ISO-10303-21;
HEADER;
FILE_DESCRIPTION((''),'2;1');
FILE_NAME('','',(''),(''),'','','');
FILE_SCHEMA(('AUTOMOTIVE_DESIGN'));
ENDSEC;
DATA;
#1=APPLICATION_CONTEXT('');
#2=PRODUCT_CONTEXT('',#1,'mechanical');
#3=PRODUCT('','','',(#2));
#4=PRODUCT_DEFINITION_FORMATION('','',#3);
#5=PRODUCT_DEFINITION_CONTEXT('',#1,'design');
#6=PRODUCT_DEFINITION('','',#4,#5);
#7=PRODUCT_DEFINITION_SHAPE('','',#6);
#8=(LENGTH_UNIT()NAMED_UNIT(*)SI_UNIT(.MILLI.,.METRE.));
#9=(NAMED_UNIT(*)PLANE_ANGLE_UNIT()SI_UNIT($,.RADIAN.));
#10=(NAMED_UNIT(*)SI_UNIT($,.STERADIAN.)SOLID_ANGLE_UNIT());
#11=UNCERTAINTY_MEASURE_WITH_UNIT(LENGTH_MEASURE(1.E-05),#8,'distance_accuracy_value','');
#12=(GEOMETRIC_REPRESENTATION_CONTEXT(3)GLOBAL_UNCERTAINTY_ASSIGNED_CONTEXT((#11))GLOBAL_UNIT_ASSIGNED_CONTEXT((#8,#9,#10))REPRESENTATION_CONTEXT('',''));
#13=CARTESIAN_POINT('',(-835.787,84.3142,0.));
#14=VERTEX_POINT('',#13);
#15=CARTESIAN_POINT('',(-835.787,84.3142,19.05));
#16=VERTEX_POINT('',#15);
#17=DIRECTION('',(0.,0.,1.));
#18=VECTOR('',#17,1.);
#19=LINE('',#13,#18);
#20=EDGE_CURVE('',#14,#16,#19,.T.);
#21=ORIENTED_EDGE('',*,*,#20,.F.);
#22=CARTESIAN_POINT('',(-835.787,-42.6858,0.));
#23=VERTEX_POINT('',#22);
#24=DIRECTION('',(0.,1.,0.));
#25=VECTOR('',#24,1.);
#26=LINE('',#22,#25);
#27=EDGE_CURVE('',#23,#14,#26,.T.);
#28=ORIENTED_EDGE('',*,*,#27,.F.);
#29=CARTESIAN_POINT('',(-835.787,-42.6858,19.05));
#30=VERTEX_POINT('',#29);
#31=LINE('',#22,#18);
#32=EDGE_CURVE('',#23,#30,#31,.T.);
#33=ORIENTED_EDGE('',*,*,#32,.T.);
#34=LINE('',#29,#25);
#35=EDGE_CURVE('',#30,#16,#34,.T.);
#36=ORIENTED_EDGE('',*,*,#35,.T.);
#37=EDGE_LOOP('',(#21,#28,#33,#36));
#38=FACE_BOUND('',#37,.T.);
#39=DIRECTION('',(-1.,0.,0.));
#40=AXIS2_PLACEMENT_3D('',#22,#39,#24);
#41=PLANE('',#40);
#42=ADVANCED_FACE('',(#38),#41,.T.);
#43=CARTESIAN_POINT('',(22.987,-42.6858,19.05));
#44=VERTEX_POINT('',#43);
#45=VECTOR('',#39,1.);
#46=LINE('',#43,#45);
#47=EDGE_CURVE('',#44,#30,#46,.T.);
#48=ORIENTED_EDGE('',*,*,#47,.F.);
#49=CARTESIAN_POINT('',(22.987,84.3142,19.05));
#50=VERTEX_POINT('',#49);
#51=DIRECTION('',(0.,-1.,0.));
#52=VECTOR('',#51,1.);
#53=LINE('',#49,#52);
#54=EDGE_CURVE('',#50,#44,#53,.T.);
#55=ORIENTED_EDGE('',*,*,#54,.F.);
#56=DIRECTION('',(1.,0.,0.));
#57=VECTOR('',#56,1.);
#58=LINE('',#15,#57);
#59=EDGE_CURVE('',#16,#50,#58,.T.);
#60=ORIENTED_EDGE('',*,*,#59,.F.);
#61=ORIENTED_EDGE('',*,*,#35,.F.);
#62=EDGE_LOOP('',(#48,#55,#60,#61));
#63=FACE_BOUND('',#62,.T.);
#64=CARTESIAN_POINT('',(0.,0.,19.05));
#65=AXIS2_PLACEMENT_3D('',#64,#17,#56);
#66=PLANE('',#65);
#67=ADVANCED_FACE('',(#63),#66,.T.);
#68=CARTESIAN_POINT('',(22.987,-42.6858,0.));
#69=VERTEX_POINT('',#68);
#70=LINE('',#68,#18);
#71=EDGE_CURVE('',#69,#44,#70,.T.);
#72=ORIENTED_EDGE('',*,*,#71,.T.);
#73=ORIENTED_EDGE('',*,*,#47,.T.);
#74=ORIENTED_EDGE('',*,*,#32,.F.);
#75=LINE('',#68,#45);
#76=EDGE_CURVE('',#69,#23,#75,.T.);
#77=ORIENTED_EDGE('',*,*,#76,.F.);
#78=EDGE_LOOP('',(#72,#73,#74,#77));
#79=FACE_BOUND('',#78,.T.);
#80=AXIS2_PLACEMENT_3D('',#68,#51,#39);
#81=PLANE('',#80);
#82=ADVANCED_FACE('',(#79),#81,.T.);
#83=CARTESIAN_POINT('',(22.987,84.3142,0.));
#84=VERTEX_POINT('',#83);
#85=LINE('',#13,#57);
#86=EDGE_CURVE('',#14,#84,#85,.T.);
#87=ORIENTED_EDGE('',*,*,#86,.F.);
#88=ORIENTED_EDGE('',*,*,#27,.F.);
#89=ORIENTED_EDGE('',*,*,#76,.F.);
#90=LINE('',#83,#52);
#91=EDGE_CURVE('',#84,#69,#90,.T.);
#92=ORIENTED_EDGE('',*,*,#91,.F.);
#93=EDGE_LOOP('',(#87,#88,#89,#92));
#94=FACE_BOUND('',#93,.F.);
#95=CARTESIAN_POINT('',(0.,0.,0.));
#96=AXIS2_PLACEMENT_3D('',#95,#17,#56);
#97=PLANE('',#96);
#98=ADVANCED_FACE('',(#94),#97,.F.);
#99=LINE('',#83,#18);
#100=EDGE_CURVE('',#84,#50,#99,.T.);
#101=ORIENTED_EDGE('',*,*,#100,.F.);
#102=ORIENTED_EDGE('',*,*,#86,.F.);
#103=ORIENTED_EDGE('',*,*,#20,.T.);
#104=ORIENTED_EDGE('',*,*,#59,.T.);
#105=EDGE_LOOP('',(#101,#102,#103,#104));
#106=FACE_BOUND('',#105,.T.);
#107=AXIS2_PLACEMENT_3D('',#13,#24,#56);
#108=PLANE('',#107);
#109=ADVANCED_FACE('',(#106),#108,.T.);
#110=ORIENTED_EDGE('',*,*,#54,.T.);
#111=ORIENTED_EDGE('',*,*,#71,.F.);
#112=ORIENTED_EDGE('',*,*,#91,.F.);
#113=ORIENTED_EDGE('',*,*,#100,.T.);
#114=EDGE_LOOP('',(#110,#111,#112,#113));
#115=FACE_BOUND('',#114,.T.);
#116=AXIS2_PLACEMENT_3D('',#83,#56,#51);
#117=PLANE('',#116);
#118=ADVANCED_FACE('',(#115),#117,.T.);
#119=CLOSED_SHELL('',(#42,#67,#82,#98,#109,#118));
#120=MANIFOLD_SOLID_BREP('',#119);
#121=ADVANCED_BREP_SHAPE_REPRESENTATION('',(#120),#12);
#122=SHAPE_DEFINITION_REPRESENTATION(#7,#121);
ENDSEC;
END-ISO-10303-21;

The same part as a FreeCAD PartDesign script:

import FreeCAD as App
import Part
import Sketcher
from FreeCAD import Vector
Q = App.Units.Quantity

doc = App.newDocument("Part")
params = doc.addObject("Spreadsheet::Sheet", "Params")
for row, (alias, value) in enumerate([
    ("sketch1_height", "5 in"),
    ("sketch1_width", "33.81 in"),
    ("pad1_length", "0.75 in"),
], start=1):
    params.set(f"A{row}", alias)
    params.set(f"B{row}", "=" + value)
    params.setAlias(f"B{row}", alias)

body = doc.addObject("PartDesign::Body", "Body")

sketch1 = body.newObject("Sketcher::SketchObject", "Sketch")
sketch1.AttachmentSupport = (doc.getObject("XY_Plane"), [""])
sketch1.MapMode = "FlatFace"
sketch1.addGeometry([
    Part.LineSegment(Vector(23, -43, 0), Vector(23, 84, 0)),
    Part.LineSegment(Vector(23, 84, 0), Vector(-836, 84, 0)),
    Part.LineSegment(Vector(-836, 84, 0), Vector(-836, -43, 0)),
    Part.LineSegment(Vector(-836, -43, 0), Vector(23, -43, 0)),
], False)
sketch1.addConstraint([
    Sketcher.Constraint("Coincident", 0, 2, 1, 1),
    Sketcher.Constraint("Coincident", 1, 2, 2, 1),
    Sketcher.Constraint("Coincident", 2, 2, 3, 1),
    Sketcher.Constraint("Coincident", 3, 2, 0, 1),
    Sketcher.Constraint("Vertical", 0),
    Sketcher.Constraint("Horizontal", 1),
    Sketcher.Constraint("Vertical", 2),
    Sketcher.Constraint("Horizontal", 3),
    Sketcher.Constraint("DistanceY", 0, 1, 0, 2, Q("5 in")),
    Sketcher.Constraint("DistanceX", 1, 2, 1, 1, Q("33.81 in")),
    Sketcher.Constraint("DistanceX", -1, 1, 0, 2, Q("0.905 in")),
    Sketcher.Constraint("DistanceY", -1, 1, 0, 2, Q("84.3142 mm")),
])
sketch1.setExpression("Constraints[8]", "Params.sketch1_height")
sketch1.setExpression("Constraints[9]", "Params.sketch1_width")
pad1 = body.newObject("PartDesign::Pad", "Pad")
pad1.Profile = sketch1
pad1.setExpression("Length", "Params.pad1_length")

doc.recompute()
